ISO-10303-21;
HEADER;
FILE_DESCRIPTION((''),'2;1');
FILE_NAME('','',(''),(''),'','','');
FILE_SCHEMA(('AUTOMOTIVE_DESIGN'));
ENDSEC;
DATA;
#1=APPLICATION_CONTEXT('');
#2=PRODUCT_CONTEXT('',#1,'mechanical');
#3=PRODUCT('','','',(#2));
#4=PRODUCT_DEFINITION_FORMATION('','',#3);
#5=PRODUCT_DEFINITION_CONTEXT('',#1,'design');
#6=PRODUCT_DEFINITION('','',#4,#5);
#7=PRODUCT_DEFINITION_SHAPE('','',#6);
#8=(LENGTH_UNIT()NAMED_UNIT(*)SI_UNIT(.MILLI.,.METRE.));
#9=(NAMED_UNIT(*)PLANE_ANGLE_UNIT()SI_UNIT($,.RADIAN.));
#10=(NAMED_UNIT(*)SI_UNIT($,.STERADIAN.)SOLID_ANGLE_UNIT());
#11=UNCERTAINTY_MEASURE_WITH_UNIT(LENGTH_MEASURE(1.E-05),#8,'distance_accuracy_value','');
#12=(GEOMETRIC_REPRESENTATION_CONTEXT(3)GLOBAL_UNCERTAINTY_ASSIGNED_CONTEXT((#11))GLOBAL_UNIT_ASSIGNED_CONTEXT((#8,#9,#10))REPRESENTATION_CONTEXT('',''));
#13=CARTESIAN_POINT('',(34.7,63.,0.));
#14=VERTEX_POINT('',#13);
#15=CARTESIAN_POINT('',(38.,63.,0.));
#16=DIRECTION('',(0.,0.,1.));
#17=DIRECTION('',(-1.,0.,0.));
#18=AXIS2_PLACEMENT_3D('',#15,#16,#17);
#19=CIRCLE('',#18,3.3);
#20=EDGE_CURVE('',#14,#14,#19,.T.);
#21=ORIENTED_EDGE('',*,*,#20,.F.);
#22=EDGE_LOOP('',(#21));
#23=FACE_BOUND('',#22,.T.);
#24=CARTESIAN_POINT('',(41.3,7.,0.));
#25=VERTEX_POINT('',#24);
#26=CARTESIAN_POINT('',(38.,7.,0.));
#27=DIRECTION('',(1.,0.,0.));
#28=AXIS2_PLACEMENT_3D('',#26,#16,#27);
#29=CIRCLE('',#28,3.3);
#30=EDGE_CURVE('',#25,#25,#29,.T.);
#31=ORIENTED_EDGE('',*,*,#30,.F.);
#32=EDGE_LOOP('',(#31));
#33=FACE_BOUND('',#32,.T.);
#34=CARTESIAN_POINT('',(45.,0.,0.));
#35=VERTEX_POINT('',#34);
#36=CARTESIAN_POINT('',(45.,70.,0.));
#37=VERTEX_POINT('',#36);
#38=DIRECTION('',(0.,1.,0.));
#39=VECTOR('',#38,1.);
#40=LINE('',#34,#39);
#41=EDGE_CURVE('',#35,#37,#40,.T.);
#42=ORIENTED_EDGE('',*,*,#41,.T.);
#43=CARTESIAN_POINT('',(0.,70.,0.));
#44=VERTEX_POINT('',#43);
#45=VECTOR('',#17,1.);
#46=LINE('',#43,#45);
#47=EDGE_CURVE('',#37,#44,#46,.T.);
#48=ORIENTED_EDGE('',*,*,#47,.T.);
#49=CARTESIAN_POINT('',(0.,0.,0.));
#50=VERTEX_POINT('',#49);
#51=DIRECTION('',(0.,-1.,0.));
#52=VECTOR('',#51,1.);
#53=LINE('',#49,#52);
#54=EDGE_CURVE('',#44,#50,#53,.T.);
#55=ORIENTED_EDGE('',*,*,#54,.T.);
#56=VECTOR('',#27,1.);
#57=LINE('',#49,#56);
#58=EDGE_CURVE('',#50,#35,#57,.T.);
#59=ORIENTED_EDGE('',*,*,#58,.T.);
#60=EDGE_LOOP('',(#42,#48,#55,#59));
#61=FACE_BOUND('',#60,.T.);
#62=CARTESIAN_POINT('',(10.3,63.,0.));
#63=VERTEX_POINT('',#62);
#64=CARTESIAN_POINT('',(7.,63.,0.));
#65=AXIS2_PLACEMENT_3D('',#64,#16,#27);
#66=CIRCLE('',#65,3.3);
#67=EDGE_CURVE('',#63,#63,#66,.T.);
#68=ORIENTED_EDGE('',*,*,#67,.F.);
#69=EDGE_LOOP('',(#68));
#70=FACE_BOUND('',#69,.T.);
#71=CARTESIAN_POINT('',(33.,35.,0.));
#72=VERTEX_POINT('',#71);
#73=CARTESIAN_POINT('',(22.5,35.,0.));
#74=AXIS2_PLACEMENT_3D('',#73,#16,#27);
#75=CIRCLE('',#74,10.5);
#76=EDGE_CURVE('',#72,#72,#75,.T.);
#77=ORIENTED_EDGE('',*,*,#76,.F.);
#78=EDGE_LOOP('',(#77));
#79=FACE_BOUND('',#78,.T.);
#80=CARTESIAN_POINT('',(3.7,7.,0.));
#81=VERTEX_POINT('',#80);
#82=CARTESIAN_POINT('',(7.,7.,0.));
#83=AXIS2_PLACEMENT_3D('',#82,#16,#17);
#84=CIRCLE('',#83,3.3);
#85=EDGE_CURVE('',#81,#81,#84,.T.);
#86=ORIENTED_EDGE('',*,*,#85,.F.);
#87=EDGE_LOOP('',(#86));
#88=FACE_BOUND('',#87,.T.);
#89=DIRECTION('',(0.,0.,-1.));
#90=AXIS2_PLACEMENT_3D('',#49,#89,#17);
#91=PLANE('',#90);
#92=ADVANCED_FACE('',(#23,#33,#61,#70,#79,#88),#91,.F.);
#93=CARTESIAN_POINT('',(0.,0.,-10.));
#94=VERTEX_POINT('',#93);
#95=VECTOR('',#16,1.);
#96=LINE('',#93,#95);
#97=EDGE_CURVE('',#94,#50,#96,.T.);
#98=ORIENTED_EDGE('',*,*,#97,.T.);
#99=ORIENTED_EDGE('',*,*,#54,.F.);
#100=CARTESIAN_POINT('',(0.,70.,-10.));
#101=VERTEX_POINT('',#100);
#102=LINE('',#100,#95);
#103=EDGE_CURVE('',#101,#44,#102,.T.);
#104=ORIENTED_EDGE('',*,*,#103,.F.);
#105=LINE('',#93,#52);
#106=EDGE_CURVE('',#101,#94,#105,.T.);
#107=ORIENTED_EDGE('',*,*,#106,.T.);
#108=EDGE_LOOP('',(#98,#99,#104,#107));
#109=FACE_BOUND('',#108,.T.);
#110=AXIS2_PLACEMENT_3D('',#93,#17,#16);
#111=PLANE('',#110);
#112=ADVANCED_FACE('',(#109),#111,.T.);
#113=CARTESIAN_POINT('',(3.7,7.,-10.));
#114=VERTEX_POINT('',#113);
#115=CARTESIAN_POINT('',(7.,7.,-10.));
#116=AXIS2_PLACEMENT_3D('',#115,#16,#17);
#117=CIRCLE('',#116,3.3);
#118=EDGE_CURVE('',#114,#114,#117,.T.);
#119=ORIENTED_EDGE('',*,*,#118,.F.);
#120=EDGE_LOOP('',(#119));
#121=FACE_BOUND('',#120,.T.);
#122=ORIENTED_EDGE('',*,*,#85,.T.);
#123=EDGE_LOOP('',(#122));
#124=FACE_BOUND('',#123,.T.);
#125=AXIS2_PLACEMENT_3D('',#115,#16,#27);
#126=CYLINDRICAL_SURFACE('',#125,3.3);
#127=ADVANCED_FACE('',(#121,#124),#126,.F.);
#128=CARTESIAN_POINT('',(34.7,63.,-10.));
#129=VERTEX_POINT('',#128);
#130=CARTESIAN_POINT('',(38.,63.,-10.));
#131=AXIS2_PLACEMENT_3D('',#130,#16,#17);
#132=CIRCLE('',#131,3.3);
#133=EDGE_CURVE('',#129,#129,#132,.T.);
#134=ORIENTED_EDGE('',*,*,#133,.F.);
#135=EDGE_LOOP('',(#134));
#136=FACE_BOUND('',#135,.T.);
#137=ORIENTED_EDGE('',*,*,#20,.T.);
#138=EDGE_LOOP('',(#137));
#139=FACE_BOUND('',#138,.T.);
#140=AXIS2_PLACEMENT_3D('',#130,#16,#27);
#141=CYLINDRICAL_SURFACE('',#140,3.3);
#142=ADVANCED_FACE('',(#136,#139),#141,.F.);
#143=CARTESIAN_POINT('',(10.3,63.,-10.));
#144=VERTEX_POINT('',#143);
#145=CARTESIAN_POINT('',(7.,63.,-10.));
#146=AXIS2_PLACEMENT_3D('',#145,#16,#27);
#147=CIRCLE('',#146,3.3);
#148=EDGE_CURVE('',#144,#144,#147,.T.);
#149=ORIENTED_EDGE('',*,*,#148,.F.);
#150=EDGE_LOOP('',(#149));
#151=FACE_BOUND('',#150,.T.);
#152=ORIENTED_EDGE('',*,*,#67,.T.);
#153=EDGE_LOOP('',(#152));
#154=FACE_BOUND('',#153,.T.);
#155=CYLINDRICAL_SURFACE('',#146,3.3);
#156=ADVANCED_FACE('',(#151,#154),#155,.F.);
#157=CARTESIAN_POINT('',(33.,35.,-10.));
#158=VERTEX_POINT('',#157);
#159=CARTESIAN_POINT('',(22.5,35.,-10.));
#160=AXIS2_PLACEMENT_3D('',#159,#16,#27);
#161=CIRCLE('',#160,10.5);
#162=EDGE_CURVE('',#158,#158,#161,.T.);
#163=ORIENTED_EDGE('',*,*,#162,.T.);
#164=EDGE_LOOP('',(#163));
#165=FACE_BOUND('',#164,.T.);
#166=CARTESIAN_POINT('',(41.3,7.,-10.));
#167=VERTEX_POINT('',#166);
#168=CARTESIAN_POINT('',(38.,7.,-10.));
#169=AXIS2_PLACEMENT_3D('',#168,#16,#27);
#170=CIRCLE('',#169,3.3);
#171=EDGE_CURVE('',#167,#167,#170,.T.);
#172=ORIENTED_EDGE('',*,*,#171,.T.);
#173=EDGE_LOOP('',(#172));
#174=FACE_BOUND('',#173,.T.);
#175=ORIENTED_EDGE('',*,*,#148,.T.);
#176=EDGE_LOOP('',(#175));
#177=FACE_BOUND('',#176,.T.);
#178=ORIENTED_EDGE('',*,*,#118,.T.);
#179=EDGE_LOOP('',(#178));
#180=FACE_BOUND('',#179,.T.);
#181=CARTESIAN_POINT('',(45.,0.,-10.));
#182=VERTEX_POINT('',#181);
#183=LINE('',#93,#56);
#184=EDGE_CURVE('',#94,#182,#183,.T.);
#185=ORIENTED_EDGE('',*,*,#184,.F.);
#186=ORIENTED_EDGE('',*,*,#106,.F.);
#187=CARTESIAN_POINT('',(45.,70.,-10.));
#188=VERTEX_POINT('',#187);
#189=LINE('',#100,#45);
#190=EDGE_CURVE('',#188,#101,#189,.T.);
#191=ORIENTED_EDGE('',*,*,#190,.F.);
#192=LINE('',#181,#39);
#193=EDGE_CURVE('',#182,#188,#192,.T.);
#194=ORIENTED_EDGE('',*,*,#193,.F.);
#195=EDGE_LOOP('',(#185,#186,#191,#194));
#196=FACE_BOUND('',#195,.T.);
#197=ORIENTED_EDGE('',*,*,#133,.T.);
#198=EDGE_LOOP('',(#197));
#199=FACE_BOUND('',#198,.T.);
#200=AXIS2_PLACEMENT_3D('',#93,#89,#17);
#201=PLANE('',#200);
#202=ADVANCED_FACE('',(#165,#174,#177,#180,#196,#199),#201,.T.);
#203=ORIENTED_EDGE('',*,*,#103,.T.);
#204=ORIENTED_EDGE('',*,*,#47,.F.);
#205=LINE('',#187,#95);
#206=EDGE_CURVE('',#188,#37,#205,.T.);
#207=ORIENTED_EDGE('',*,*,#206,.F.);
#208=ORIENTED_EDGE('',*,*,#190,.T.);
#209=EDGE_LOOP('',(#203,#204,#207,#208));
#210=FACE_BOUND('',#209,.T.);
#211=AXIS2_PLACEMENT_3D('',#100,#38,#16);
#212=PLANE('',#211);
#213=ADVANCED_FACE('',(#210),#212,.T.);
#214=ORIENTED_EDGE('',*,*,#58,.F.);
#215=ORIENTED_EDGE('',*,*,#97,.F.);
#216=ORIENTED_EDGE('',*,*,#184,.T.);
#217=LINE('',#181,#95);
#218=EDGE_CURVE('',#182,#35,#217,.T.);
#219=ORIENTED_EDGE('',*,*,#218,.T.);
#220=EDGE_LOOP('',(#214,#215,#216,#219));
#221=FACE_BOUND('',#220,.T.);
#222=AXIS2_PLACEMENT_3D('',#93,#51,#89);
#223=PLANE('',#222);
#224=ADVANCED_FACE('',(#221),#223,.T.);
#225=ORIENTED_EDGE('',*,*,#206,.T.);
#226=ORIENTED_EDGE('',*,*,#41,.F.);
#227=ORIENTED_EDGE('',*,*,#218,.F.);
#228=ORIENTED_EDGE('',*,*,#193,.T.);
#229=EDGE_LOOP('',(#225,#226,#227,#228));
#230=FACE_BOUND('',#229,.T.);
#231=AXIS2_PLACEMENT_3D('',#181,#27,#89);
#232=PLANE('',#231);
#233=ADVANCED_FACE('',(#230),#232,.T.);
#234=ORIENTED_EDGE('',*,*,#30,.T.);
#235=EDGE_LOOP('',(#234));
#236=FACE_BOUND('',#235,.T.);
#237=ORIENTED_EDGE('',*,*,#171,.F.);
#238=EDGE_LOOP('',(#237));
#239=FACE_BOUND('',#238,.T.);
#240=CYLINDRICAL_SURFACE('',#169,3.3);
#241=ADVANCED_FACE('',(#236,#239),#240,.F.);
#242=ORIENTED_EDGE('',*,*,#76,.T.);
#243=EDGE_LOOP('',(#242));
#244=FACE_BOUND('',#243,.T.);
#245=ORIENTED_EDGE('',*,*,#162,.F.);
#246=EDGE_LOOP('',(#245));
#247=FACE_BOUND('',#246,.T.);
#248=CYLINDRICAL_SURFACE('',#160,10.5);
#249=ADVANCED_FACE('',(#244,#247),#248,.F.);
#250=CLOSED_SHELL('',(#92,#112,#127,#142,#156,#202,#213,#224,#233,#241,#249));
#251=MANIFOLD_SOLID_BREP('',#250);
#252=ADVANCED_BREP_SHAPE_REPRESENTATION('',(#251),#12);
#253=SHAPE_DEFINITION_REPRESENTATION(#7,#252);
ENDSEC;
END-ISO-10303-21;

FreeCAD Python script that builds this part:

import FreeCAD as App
import Part
import Sketcher
from FreeCAD import Vector
Q = App.Units.Quantity

doc = App.newDocument("Part")
body = doc.addObject("PartDesign::Body", "Body")

# Sketch on XY plane
sketch1 = body.newObject("Sketcher::SketchObject", "Sketch")
sketch1.AttachmentSupport = (doc.getObject("XY_Plane"), [""])
sketch1.MapMode = "FlatFace"
sketch1.addGeometry([
    Part.LineSegment(Vector(0, 70, 0), Vector(0, 0, 0)),
    Part.LineSegment(Vector(0, 0, 0), Vector(45, 0, 0)),
    Part.LineSegment(Vector(45, 0, 0), Vector(45, 70, 0)),
    Part.LineSegment(Vector(45, 70, 0), Vector(0, 70, 0)),
], False)
sketch1.addConstraint([
    Sketcher.Constraint("Coincident", 0, 2, 1, 1),
    Sketcher.Constraint("Coincident", 1, 2, 2, 1),
    Sketcher.Constraint("Coincident", 2, 2, 3, 1),
    Sketcher.Constraint("Coincident", 3, 2, 0, 1),
    Sketcher.Constraint("Vertical", 0),
    Sketcher.Constraint("Horizontal", 1),
    Sketcher.Constraint("Vertical", 2),
    Sketcher.Constraint("Horizontal", 3),
    Sketcher.Constraint("Coincident", 0, 2, -1, 1),
    Sketcher.Constraint("DistanceX", 1, 1, 1, 2, Q("45 mm")),
    Sketcher.Constraint("DistanceY", 0, 2, 0, 1, Q("70 mm")),
])
pad1 = body.newObject("PartDesign::Pad", "Pad")
pad1.Profile = sketch1
pad1.Length = 10
pad1.Reversed = True

# Sketch on XY plane
sketch2 = body.newObject("Sketcher::SketchObject", "Sketch001")
sketch2.AttachmentSupport = (doc.getObject("XY_Plane"), [""])
sketch2.MapMode = "FlatFace"
sketch2.addGeometry([
    Part.Circle(Vector(22.5, 35, 0), Vector(0, 0, 1), 10.5),  # 0
    Part.Circle(Vector(38, 7, 0), Vector(0, 0, 1), 3.3),  # 1
    Part.Circle(Vector(38, 63, 0), Vector(0, 0, 1), 3.3),  # 2
    Part.Circle(Vector(7, 7, 0), Vector(0, 0, 1), 3.3),  # 3
    Part.Circle(Vector(7, 63, 0), Vector(0, 0, 1), 3.3),  # 4
], False)
sketch2.addConstraint([
    Sketcher.Constraint("Equal", 1, 2),
    Sketcher.Constraint("Equal", 2, 3),
    Sketcher.Constraint("Equal", 3, 4),
    Sketcher.Constraint("Horizontal", 1, 3, 3, 3),
    Sketcher.Constraint("Horizontal", 2, 3, 4, 3),
    Sketcher.Constraint("Vertical", 1, 3, 2, 3),
    Sketcher.Constraint("Vertical", 3, 3, 4, 3),
    Sketcher.Constraint("Diameter", 0, Q("21 mm")),
    Sketcher.Constraint("Diameter", 1, Q("6.6 mm")),
    Sketcher.Constraint("DistanceY", -1, 1, 0, 3, Q("35 mm")),
    Sketcher.Constraint("DistanceX", -1, 1, 1, 3, Q("38 mm")),
    Sketcher.Constraint("DistanceY", -1, 1, 1, 3, Q("7 mm")),
    Sketcher.Constraint("DistanceY", -1, 1, 2, 3, Q("63 mm")),
    Sketcher.Constraint("DistanceX", -1, 1, 3, 3, Q("7 mm")),
    Sketcher.Constraint("DistanceX", -1, 1, 0, 3, Q("22.5 mm")),
])
pocket1 = body.newObject("PartDesign::Pocket", "Pocket")
pocket1.Profile = sketch2
pocket1.Length = 10

doc.recompute()
